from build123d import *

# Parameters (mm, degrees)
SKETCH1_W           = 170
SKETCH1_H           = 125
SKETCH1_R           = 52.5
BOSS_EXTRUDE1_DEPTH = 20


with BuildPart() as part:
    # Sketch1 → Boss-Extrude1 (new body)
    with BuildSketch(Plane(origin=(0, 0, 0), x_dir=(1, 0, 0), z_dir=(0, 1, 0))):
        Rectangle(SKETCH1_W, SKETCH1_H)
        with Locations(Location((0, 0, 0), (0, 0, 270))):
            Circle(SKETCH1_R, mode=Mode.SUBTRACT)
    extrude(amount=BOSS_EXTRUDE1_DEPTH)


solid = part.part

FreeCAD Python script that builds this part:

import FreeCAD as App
import Part
import Sketcher
Q = App.Units.Quantity

doc = App.newDocument("Part")
body = doc.addObject("PartDesign::Body", "Body")

# Sketch on XZ plane
sketch1 = doc.addObject("Sketcher::SketchObject", "Sketch")
body.addObject(sketch1)
sketch1.AttachmentSupport = (doc.XZ_Plane, [""])
sketch1.MapMode = "FlatFace"
sketch1.addGeometry(Part.LineSegment(App.Vector(-85, -62, 0), App.Vector(-85, 62, 0)), False)
sketch1.addGeometry(Part.LineSegment(App.Vector(-85, 62, 0), App.Vector(85, 62, 0)), False)
sketch1.addGeometry(Part.LineSegment(App.Vector(85, 62, 0), App.Vector(85, -62, 0)), False)
sketch1.addGeometry(Part.LineSegment(App.Vector(85, -62, 0), App.Vector(-85, -62, 0)), False)
sketch1.addGeometry(Part.Circle(App.Vector(0, 0, 0), App.Vector(0, 0, 1), 52), False)
sketch1.addConstraint(Sketcher.Constraint("Coincident", 0, 2, 1, 1))
sketch1.addConstraint(Sketcher.Constraint("Coincident", 1, 2, 2, 1))
sketch1.addConstraint(Sketcher.Constraint("Coincident", 2, 2, 3, 1))
sketch1.addConstraint(Sketcher.Constraint("Coincident", 3, 2, 0, 1))
sketch1.addConstraint(Sketcher.Constraint("Vertical", 0))
sketch1.addConstraint(Sketcher.Constraint("Horizontal", 1))
sketch1.addConstraint(Sketcher.Constraint("Vertical", 2))
sketch1.addConstraint(Sketcher.Constraint("Horizontal", 3))
sketch1.addConstraint(Sketcher.Constraint("Coincident", 4, 3, -1, 1))
sketch1.addConstraint(Sketcher.Constraint("Symmetric", 0, 2, 2, 2, -1, 1))
sketch1.addConstraint(Sketcher.Constraint("Diameter", 4, Q("105 mm")))
sketch1.addConstraint(Sketcher.Constraint("DistanceX", 1, 1, 1, 2, Q("170 mm")))
sketch1.addConstraint(Sketcher.Constraint("DistanceY", 0, 1, 0, 2, Q("125 mm")))
pad1 = doc.addObject("PartDesign::Pad", "Pad")
body.addObject(pad1)
pad1.Profile = sketch1
pad1.Length = 20
pad1.Reversed = True

doc.recompute()
